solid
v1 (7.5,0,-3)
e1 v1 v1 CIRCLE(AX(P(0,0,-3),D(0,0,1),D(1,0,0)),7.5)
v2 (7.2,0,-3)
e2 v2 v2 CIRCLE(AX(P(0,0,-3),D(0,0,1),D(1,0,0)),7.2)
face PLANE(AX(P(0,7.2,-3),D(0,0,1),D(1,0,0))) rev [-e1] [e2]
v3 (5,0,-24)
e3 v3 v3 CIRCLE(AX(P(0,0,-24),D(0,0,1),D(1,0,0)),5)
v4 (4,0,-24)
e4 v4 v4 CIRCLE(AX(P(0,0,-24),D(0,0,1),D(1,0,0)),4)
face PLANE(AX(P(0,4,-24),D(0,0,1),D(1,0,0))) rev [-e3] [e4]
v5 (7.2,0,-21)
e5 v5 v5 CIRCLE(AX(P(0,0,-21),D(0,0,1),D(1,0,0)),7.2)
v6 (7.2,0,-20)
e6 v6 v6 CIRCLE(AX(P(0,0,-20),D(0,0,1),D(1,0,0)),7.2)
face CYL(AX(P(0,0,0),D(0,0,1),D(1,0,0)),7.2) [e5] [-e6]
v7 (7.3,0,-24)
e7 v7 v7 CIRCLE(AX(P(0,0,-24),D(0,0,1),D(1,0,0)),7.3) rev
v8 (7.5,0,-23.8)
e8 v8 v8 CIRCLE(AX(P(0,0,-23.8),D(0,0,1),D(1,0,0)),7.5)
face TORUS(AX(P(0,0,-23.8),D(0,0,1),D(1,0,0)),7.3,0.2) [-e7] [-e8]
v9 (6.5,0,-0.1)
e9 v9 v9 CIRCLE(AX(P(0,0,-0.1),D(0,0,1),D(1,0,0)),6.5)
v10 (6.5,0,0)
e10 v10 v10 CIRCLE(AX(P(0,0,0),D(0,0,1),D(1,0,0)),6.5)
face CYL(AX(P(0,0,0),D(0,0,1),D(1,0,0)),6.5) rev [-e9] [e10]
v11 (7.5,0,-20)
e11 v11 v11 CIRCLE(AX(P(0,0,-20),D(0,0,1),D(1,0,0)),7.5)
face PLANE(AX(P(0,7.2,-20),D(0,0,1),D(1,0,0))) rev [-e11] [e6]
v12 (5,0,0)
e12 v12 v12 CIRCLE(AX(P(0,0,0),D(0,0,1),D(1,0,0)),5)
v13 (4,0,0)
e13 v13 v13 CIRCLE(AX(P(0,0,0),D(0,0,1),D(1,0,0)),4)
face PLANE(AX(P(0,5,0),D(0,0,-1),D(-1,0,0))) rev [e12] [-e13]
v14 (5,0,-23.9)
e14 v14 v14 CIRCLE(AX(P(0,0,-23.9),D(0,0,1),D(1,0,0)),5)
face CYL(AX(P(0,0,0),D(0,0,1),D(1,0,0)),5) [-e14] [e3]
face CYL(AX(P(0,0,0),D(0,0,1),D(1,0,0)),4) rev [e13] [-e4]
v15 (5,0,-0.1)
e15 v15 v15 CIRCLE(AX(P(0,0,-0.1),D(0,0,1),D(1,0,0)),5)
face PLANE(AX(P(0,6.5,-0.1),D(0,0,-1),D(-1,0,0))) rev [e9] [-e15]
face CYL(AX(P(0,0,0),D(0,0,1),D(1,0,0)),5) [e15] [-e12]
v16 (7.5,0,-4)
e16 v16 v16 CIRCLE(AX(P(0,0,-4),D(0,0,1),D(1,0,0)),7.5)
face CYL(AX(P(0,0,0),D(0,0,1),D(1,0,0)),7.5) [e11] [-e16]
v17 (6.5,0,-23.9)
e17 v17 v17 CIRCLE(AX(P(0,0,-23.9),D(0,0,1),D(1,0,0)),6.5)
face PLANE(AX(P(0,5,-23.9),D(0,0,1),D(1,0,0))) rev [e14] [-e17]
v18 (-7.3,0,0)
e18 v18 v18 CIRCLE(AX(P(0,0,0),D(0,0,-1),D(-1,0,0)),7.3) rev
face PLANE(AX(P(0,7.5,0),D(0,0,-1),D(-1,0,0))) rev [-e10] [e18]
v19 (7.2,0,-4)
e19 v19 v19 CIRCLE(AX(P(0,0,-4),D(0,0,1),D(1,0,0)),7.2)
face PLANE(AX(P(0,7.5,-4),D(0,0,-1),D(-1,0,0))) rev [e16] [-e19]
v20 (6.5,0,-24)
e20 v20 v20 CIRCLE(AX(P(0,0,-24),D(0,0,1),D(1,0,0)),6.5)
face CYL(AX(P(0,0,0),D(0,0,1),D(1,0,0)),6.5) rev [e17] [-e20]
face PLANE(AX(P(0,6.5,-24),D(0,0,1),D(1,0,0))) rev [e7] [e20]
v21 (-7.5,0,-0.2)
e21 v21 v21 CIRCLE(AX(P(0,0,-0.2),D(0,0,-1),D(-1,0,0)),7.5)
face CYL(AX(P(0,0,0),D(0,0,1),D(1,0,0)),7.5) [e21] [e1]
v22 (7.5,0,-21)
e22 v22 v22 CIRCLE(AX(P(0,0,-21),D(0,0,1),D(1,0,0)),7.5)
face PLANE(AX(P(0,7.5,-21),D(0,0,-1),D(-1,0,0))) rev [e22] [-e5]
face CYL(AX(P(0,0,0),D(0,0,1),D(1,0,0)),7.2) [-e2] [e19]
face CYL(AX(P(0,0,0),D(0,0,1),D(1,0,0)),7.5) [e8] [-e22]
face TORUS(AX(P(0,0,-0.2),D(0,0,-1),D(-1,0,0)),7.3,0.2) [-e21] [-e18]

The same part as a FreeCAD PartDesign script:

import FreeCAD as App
import Part
import Sketcher

V = App.Vector


def edges_at(feature, points):
    """Names of the edges that pass closest to the given points."""
    edges = feature.Shape.Edges
    near = lambda p: min(range(len(edges)), key=lambda i: edges[i].distToShape(Part.Vertex(*p))[0])
    return sorted({f"Edge{near(p) + 1}" for p in points})

doc = App.newDocument("Part")
params = doc.addObject("Spreadsheet::Sheet", "Params")
for row, (alias, value) in enumerate([
    ("sketch1_width", "1 mm"),
    ("sketch1_height", "24 mm"),
    ("sketch1_height2", "3 mm"),
    ("sketch1_width2", "1.5 mm"),
    ("sketch1_width3", "0.3 mm"),
    ("revolution_angle", "360 deg"),
    ("fillet_radius", "0.2 mm"),
], start=1):
    params.set(f"A{row}", alias)
    params.set(f"B{row}", "=" + value)
    params.setAlias(f"B{row}", alias)

body = doc.addObject("PartDesign::Body", "Body")

# Sketch on YZ plane
sketch1 = body.newObject("Sketcher::SketchObject", "Sketch")
sketch1.AttachmentSupport = (doc.getObject("YZ_Plane"), [""])
sketch1.MapMode = "FlatFace"
sketch1.addGeometry([
    Part.LineSegment(V(7.5, 0, 0), V(6.5, 0, 0)),  # 0
    Part.LineSegment(V(6.5, 0, 0), V(6.5, -0.1, 0)),  # 1
    Part.LineSegment(V(6.5, -0.1, 0), V(5, -0.1, 0)),  # 2
    Part.LineSegment(V(5, -0.1, 0), V(5, 0, 0)),  # 3
    Part.LineSegment(V(5, 0, 0), V(4, 0, 0)),  # 4
    Part.LineSegment(V(4, 0, 0), V(4, -24, 0)),  # 5
    Part.LineSegment(V(4, -24, 0), V(5, -24, 0)),  # 6
    Part.LineSegment(V(5, -24, 0), V(5, -23.9, 0)),  # 7
    Part.LineSegment(V(5, -23.9, 0), V(6.5, -23.9, 0)),  # 8
    Part.LineSegment(V(6.5, -23.9, 0), V(6.5, -24, 0)),  # 9
    Part.LineSegment(V(6.5, -24, 0), V(7.5, -24, 0)),  # 10
    Part.LineSegment(V(7.5, -24, 0), V(7.5, -21, 0)),  # 11
    Part.LineSegment(V(7.5, -21, 0), V(7.2, -21, 0)),  # 12
    Part.LineSegment(V(7.2, -21, 0), V(7.2, -20, 0)),  # 13
    Part.LineSegment(V(7.2, -20, 0), V(7.5, -20, 0)),  # 14
    Part.LineSegment(V(7.5, -20, 0), V(7.5, -4, 0)),  # 15
    Part.LineSegment(V(7.5, -4, 0), V(7.2, -4, 0)),  # 16
    Part.LineSegment(V(7.2, -4, 0), V(7.2, -3, 0)),  # 17
    Part.LineSegment(V(7.2, -3, 0), V(7.5, -3, 0)),  # 18
    Part.LineSegment(V(7.5, -3, 0), V(7.5, 0, 0)),  # 19
], False)
sketch1.addConstraint([
    Sketcher.Constraint("Coincident", 0, 2, 1, 1),
    Sketcher.Constraint("Coincident", 1, 2, 2, 1),
    Sketcher.Constraint("Coincident", 2, 2, 3, 1),
    Sketcher.Constraint("Coincident", 3, 2, 4, 1),
    Sketcher.Constraint("Coincident", 4, 2, 5, 1),
    Sketcher.Constraint("Coincident", 5, 2, 6, 1),
    Sketcher.Constraint("Coincident", 6, 2, 7, 1),
    Sketcher.Constraint("Coincident", 7, 2, 8, 1),
    Sketcher.Constraint("Coincident", 8, 2, 9, 1),
    Sketcher.Constraint("Coincident", 9, 2, 10, 1),
    Sketcher.Constraint("Coincident", 10, 2, 11, 1),
    Sketcher.Constraint("Coincident", 11, 2, 12, 1),
    Sketcher.Constraint("Coincident", 12, 2, 13, 1),
    Sketcher.Constraint("Coincident", 13, 2, 14, 1),
    Sketcher.Constraint("Coincident", 14, 2, 15, 1),
    Sketcher.Constraint("Coincident", 15, 2, 16, 1),
    Sketcher.Constraint("Coincident", 16, 2, 17, 1),
    Sketcher.Constraint("Coincident", 17, 2, 18, 1),
    Sketcher.Constraint("Coincident", 18, 2, 19, 1),
    Sketcher.Constraint("Coincident", 19, 2, 0, 1),
    Sketcher.Constraint("Horizontal", 0),
    Sketcher.Constraint("Vertical", 1),
    Sketcher.Constraint("Horizontal", 2),
    Sketcher.Constraint("Vertical", 3),
    Sketcher.Constraint("Horizontal", 4),
    Sketcher.Constraint("Vertical", 5),
    Sketcher.Constraint("Horizontal", 6),
    Sketcher.Constraint("Vertical", 7),
    Sketcher.Constraint("Horizontal", 8),
    Sketcher.Constraint("Vertical", 9),
    Sketcher.Constraint("Horizontal", 10),
    Sketcher.Constraint("Vertical", 11),
    Sketcher.Constraint("Horizontal", 12),
    Sketcher.Constraint("Vertical", 13),
    Sketcher.Constraint("Horizontal", 14),
    Sketcher.Constraint("Vertical", 15),
    Sketcher.Constraint("Horizontal", 16),
    Sketcher.Constraint("Vertical", 17),
    Sketcher.Constraint("Horizontal", 18),
    Sketcher.Constraint("Vertical", 19),
    Sketcher.Constraint("PointOnObject", 0, 2, -1),
    Sketcher.Constraint("PointOnObject", 3, 2, -1),
    Sketcher.Constraint("Horizontal", 6, 2, 9, 2),
    Sketcher.Constraint("Vertical", 3, 2, 6, 2),
    Sketcher.Constraint("Vertical", 1, 2, 8, 2),
    Sketcher.Constraint("Vertical", 11, 2, 14, 2),
    Sketcher.Constraint("Vertical", 13, 2, 16, 2),
    Sketcher.Constraint("Vertical", 15, 2, 18, 2),
    Sketcher.Constraint("Equal", 0, 4),
    Sketcher.Constraint("Equal", 3, 7),
    Sketcher.Constraint("Equal", 10, 13),
    Sketcher.Constraint("Equal", 13, 17),
    Sketcher.Constraint("Equal", 11, 19),
    Sketcher.Constraint("DistanceX", 0, 2, 0, 1, 1.0),
    Sketcher.Constraint("DistanceY", 5, 2, 5, 1, 24.0),
    Sketcher.Constraint("DistanceY", 11, 1, 11, 2, 3.0),
    Sketcher.Constraint("DistanceX", 2, 2, 2, 1, 1.5),
    Sketcher.Constraint("DistanceX", 12, 2, 12, 1, 0.3),
    Sketcher.Constraint("DistanceY", 1, 2, 1, 1, 0.1),
    Sketcher.Constraint("DistanceX", -1, 1, 2, 2, 5.0),
])
sketch1.setExpression("Constraints[53]", "Params.sketch1_width")
sketch1.setExpression("Constraints[54]", "Params.sketch1_height")
sketch1.setExpression("Constraints[55]", "Params.sketch1_height2")
sketch1.setExpression("Constraints[56]", "Params.sketch1_width2")
sketch1.setExpression("Constraints[57]", "Params.sketch1_width3")
revolution = body.newObject("PartDesign::Revolution", "Revolution")
revolution.Profile = sketch1
revolution.ReferenceAxis = (sketch1, ["V_Axis"])
revolution.setExpression("Angle", "Params.revolution_angle")
doc.recompute()

fillet = body.newObject("PartDesign::Fillet", "Fillet")
fillet.Base = (revolution, edges_at(revolution, [(-7.5, 0, -24), (-7.5, 0, 0)]))
fillet.setExpression("Radius", "Params.fillet_radius")

doc.recompute()
